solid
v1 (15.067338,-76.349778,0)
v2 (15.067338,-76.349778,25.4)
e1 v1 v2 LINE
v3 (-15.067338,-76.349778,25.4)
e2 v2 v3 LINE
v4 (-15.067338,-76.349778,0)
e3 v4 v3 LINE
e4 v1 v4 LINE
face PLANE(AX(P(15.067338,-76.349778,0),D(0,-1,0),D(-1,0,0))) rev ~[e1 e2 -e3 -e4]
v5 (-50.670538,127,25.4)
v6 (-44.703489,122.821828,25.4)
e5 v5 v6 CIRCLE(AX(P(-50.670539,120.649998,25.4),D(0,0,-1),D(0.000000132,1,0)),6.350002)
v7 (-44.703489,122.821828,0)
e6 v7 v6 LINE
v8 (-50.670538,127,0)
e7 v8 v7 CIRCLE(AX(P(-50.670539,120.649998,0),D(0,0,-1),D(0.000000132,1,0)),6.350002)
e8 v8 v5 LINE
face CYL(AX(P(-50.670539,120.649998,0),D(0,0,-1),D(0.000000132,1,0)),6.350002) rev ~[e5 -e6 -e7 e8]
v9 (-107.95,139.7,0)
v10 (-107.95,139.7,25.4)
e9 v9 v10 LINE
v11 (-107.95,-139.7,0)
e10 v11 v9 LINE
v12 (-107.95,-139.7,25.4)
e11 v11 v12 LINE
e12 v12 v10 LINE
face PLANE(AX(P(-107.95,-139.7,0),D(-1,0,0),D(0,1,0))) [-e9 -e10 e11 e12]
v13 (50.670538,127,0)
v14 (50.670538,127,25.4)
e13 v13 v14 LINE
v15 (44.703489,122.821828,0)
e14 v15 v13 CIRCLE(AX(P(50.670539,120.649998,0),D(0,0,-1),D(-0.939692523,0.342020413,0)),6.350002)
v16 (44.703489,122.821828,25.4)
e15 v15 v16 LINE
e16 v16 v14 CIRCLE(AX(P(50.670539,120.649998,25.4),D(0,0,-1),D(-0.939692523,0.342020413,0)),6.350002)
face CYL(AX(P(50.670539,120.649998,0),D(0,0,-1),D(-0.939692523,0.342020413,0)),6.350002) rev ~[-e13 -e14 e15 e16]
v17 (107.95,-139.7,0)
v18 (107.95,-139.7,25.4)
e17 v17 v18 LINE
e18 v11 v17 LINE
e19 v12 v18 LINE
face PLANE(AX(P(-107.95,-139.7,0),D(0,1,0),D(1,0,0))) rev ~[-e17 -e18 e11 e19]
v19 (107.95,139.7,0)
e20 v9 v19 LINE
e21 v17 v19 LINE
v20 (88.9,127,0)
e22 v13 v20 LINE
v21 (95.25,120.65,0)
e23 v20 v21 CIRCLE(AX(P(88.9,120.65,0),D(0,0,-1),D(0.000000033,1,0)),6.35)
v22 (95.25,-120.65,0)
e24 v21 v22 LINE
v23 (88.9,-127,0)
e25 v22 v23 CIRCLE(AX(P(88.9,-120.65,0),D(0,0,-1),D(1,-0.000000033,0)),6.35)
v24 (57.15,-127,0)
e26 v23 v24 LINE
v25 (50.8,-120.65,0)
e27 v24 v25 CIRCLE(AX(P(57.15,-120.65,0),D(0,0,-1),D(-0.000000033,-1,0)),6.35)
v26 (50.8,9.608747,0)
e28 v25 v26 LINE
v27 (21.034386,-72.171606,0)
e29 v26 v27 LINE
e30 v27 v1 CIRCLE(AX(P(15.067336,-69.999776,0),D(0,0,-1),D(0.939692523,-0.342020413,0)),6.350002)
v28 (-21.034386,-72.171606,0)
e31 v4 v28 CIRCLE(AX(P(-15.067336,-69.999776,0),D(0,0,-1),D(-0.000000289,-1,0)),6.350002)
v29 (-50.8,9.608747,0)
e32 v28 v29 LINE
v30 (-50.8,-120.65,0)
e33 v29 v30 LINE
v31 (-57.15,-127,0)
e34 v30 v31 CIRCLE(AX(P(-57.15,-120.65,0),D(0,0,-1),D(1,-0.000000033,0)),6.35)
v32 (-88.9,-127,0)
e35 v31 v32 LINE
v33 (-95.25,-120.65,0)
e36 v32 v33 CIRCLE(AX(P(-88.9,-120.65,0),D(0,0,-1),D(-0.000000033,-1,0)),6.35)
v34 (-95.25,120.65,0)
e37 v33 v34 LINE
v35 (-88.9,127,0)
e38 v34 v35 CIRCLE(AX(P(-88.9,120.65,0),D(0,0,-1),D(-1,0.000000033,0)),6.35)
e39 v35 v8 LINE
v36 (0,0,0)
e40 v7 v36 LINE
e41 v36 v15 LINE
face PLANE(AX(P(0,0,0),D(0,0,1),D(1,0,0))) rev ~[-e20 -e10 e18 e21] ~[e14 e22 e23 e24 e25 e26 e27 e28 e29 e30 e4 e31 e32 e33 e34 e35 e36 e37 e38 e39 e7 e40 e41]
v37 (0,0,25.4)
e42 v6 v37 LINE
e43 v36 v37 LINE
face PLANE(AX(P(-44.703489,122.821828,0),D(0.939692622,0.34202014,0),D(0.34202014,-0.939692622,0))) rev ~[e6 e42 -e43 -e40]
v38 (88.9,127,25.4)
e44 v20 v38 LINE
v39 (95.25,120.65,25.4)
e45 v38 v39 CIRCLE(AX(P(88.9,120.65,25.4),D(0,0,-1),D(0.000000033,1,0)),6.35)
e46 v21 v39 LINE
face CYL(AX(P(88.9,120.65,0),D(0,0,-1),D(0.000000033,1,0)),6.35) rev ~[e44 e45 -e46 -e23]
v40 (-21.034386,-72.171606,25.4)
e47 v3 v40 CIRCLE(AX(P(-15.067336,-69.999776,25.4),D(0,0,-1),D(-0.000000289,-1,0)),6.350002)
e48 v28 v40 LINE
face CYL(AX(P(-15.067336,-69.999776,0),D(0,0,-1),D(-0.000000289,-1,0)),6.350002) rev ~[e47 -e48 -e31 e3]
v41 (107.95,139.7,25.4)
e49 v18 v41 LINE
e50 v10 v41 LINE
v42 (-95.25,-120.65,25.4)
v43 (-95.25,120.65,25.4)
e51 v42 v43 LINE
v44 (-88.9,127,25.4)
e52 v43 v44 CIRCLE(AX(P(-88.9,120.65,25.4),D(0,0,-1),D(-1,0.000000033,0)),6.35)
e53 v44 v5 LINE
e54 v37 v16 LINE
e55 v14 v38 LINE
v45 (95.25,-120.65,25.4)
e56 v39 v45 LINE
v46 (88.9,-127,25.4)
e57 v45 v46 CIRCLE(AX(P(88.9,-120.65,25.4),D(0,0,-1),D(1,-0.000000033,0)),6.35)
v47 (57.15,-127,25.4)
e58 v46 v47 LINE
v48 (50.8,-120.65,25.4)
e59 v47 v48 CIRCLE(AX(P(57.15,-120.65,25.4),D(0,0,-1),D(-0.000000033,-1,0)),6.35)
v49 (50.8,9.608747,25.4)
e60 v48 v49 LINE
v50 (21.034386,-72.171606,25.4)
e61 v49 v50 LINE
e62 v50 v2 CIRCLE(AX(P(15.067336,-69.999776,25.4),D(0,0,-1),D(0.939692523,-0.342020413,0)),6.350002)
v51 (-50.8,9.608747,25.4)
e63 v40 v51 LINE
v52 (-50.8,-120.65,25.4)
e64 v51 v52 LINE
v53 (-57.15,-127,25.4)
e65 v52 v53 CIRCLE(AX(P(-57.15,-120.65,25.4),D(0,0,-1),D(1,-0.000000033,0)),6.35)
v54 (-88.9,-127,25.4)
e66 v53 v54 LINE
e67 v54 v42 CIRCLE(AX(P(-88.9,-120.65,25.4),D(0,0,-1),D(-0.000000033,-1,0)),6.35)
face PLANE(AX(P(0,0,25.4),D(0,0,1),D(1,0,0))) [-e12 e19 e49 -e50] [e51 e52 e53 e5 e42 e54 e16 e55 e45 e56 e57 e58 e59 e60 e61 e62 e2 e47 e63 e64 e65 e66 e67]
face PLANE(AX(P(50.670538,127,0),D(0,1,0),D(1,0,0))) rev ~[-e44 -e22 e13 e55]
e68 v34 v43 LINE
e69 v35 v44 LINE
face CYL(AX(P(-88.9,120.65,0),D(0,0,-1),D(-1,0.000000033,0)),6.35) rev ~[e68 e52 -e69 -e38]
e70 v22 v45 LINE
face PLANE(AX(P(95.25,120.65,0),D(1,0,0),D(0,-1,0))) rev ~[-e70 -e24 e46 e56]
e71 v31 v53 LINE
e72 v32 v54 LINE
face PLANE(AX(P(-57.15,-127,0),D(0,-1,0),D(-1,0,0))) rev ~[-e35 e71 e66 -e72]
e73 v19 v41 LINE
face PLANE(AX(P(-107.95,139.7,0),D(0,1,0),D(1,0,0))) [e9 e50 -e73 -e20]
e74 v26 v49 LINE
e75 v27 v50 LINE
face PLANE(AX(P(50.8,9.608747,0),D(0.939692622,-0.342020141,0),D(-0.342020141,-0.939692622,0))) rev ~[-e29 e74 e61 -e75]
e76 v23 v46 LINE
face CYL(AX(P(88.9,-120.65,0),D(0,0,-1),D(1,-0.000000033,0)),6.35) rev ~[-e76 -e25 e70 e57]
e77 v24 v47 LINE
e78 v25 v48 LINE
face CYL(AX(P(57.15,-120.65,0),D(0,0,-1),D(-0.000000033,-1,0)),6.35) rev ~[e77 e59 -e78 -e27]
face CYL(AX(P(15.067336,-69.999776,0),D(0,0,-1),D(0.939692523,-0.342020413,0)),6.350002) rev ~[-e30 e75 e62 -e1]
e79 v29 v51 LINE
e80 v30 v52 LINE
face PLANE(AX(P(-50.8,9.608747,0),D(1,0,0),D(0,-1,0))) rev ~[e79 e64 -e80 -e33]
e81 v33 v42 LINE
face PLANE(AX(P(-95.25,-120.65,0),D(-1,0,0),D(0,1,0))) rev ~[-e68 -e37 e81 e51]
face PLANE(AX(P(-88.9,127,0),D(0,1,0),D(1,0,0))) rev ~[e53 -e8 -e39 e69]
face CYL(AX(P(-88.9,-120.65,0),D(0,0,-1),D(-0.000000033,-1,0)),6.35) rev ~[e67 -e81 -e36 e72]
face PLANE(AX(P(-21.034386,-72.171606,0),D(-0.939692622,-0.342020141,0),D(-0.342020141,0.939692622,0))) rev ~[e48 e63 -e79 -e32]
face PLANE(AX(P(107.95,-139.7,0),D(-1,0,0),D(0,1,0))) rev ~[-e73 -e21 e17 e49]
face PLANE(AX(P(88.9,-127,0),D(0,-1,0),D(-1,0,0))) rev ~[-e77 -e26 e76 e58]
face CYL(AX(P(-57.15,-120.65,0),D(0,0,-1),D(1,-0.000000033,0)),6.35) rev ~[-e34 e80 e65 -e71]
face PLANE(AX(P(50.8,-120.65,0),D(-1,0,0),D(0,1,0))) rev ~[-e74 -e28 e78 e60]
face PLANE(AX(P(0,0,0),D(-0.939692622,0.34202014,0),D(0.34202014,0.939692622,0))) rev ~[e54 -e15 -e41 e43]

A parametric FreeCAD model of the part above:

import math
import FreeCAD as App
import Part
import Sketcher
Q = App.Units.Quantity

doc = App.newDocument("Part")
body = doc.addObject("PartDesign::Body", "Body")

# Sketch on XY plane
sketch1 = body.newObject("Sketcher::SketchObject", "Sketch")
sketch1.AttachmentSupport = (doc.getObject("XY_Plane"), [""])
sketch1.MapMode = "FlatFace"
sketch1.addGeometry(Part.LineSegment(App.Vector(-108, 140, 0), App.Vector(-108, -140, 0)), False)
sketch1.addGeometry(Part.LineSegment(App.Vector(-108, -140, 0), App.Vector(108, -140, 0)), False)
sketch1.addGeometry(Part.LineSegment(App.Vector(108, -140, 0), App.Vector(108, 140, 0)), False)
sketch1.addGeometry(Part.LineSegment(App.Vector(108, 140, 0), App.Vector(-108, 140, 0)), False)
sketch1.addGeometry(Part.ArcOfCircle(Part.Circle(App.Vector(-89, -121, 0), App.Vector(0, 0, 1), 6), math.radians(-180), math.radians(-90)), False)
sketch1.addGeometry(Part.LineSegment(App.Vector(-95, -121, 0), App.Vector(-95, 121, 0)), False)
sketch1.addGeometry(Part.ArcOfCircle(Part.Circle(App.Vector(-89, 121, 0), App.Vector(0, 0, 1), 6), math.radians(90), math.radians(180)), False)
sketch1.addGeometry(Part.LineSegment(App.Vector(-89, 127, 0), App.Vector(-51, 127, 0)), False)
sketch1.addGeometry(Part.ArcOfCircle(Part.Circle(App.Vector(-51, 121, 0), App.Vector(0, 0, 1), 6), math.radians(20), math.radians(90)), False)
sketch1.addGeometry(Part.LineSegment(App.Vector(-45, 123, 0), App.Vector(0, 0, 0)), False)
sketch1.addGeometry(Part.LineSegment(App.Vector(0, 0, 0), App.Vector(45, 123, 0)), False)
sketch1.addGeometry(Part.ArcOfCircle(Part.Circle(App.Vector(51, 121, 0), App.Vector(0, 0, 1), 6), math.radians(90), math.radians(160)), False)
sketch1.addGeometry(Part.LineSegment(App.Vector(51, 127, 0), App.Vector(89, 127, 0)), False)
sketch1.addGeometry(Part.ArcOfCircle(Part.Circle(App.Vector(89, 121, 0), App.Vector(0, 0, 1), 6), math.radians(0), math.radians(90)), False)
sketch1.addGeometry(Part.LineSegment(App.Vector(95, 121, 0), App.Vector(95, -121, 0)), False)
sketch1.addGeometry(Part.ArcOfCircle(Part.Circle(App.Vector(89, -121, 0), App.Vector(0, 0, 1), 6), math.radians(-90), math.radians(0)), False)
sketch1.addGeometry(Part.LineSegment(App.Vector(89, -127, 0), App.Vector(57, -127, 0)), False)
sketch1.addGeometry(Part.ArcOfCircle(Part.Circle(App.Vector(57, -121, 0), App.Vector(0, 0, 1), 6), math.radians(-180), math.radians(-90)), False)
sketch1.addGeometry(Part.LineSegment(App.Vector(51, -121, 0), App.Vector(51, 10, 0)), False)
sketch1.addGeometry(Part.LineSegment(App.Vector(51, 10, 0), App.Vector(21, -72, 0)), False)
sketch1.addGeometry(Part.ArcOfCircle(Part.Circle(App.Vector(15, -70, 0), App.Vector(0, 0, 1), 6), math.radians(-90), math.radians(-20)), False)
sketch1.addGeometry(Part.LineSegment(App.Vector(15, -76, 0), App.Vector(-15, -76, 0)), False)
sketch1.addGeometry(Part.ArcOfCircle(Part.Circle(App.Vector(-15, -70, 0), App.Vector(0, 0, 1), 6), math.radians(-160), math.radians(-90)), False)
sketch1.addGeometry(Part.LineSegment(App.Vector(-21, -72, 0), App.Vector(-51, 10, 0)), False)
sketch1.addGeometry(Part.LineSegment(App.Vector(-51, 10, 0), App.Vector(-51, -121, 0)), False)
sketch1.addGeometry(Part.ArcOfCircle(Part.Circle(App.Vector(-57, -121, 0), App.Vector(0, 0, 1), 6), math.radians(-90), math.radians(0)), False)
sketch1.addGeometry(Part.LineSegment(App.Vector(-57, -127, 0), App.Vector(-89, -127, 0)), False)
sketch1.addConstraint(Sketcher.Constraint("Coincident", 0, 2, 1, 1))
sketch1.addConstraint(Sketcher.Constraint("Coincident", 1, 2, 2, 1))
sketch1.addConstraint(Sketcher.Constraint("Coincident", 2, 2, 3, 1))
sketch1.addConstraint(Sketcher.Constraint("Coincident", 3, 2, 0, 1))
sketch1.addConstraint(Sketcher.Constraint("Tangent", 4, 1, 5, 1))
sketch1.addConstraint(Sketcher.Constraint("Tangent", 5, 2, 6, 2))
sketch1.addConstraint(Sketcher.Constraint("Tangent", 6, 1, 7, 1))
sketch1.addConstraint(Sketcher.Constraint("Tangent", 7, 2, 8, 2))
sketch1.addConstraint(Sketcher.Constraint("Tangent", 8, 1, 9, 1))
sketch1.addConstraint(Sketcher.Constraint("Coincident", 9, 2, 10, 1))
sketch1.addConstraint(Sketcher.Constraint("Tangent", 10, 2, 11, 2))
sketch1.addConstraint(Sketcher.Constraint("Tangent", 11, 1, 12, 1))
sketch1.addConstraint(Sketcher.Constraint("Tangent", 12, 2, 13, 2))
sketch1.addConstraint(Sketcher.Constraint("Tangent", 13, 1, 14, 1))
sketch1.addConstraint(Sketcher.Constraint("Tangent", 14, 2, 15, 2))
sketch1.addConstraint(Sketcher.Constraint("Tangent", 15, 1, 16, 1))
sketch1.addConstraint(Sketcher.Constraint("Tangent", 16, 2, 17, 2))
sketch1.addConstraint(Sketcher.Constraint("Tangent", 17, 1, 18, 1))
sketch1.addConstraint(Sketcher.Constraint("Coincident", 18, 2, 19, 1))
sketch1.addConstraint(Sketcher.Constraint("Tangent", 19, 2, 20, 2))
sketch1.addConstraint(Sketcher.Constraint("Tangent", 20, 1, 21, 1))
sketch1.addConstraint(Sketcher.Constraint("Tangent", 21, 2, 22, 2))
sketch1.addConstraint(Sketcher.Constraint("Tangent", 22, 1, 23, 1))
sketch1.addConstraint(Sketcher.Constraint("Coincident", 23, 2, 24, 1))
sketch1.addConstraint(Sketcher.Constraint("Tangent", 24, 2, 25, 2))
sketch1.addConstraint(Sketcher.Constraint("Tangent", 25, 1, 26, 1))
sketch1.addConstraint(Sketcher.Constraint("Tangent", 26, 2, 4, 2))
sketch1.addConstraint(Sketcher.Constraint("Vertical", 0))
sketch1.addConstraint(Sketcher.Constraint("Horizontal", 1))
sketch1.addConstraint(Sketcher.Constraint("Vertical", 2))
sketch1.addConstraint(Sketcher.Constraint("Horizontal", 3))
sketch1.addConstraint(Sketcher.Constraint("Vertical", 5))
sketch1.addConstraint(Sketcher.Constraint("Horizontal", 7))
sketch1.addConstraint(Sketcher.Constraint("Horizontal", 12))
sketch1.addConstraint(Sketcher.Constraint("Vertical", 14))
sketch1.addConstraint(Sketcher.Constraint("Horizontal", 16))
sketch1.addConstraint(Sketcher.Constraint("Vertical", 18))
sketch1.addConstraint(Sketcher.Constraint("Horizontal", 21))
sketch1.addConstraint(Sketcher.Constraint("Vertical", 24))
sketch1.addConstraint(Sketcher.Constraint("Horizontal", 26))
sketch1.addConstraint(Sketcher.Constraint("Coincident", 9, 2, -1, 1))
sketch1.addConstraint(Sketcher.Constraint("Equal", 4, 6))
sketch1.addConstraint(Sketcher.Constraint("Equal", 8, 11))
sketch1.addConstraint(Sketcher.Constraint("Equal", 6, 13))
sketch1.addConstraint(Sketcher.Constraint("Equal", 13, 15))
sketch1.addConstraint(Sketcher.Constraint("Equal", 15, 17))
sketch1.addConstraint(Sketcher.Constraint("Equal", 11, 20))
sketch1.addConstraint(Sketcher.Constraint("Equal", 20, 22))
sketch1.addConstraint(Sketcher.Constraint("Equal", 17, 25))
sketch1.addConstraint(Sketcher.Constraint("Symmetric", 4, 3, 13, 3, -1, 1))
sketch1.addConstraint(Sketcher.Constraint("Symmetric", 0, 2, 2, 2, -1, 1))
sketch1.addConstraint(Sketcher.Constraint("Symmetric", 8, 3, 11, 3, -2))
sketch1.addConstraint(Sketcher.Constraint("Symmetric", 17, 3, 25, 3, -2))
sketch1.addConstraint(Sketcher.Constraint("Symmetric", 19, 2, 22, 1, -2))
sketch1.addConstraint(Sketcher.Constraint("Parallel", 10, 19))
sketch1.addConstraint(Sketcher.Constraint("DistanceY", 0, 2, 0, 1, Q("11 in")))
sketch1.addConstraint(Sketcher.Constraint("Radius", 4, Q("0.25 in")))
sketch1.addConstraint(Sketcher.Constraint("Radius", 8, Q("0.2500001 in")))
sketch1.addConstraint(Sketcher.Constraint("DistanceX", 1, 1, 1, 2, Q("8.5 in")))
sketch1.addConstraint(Sketcher.Constraint("DistanceY", 5, 1, 5, 2, Q("9.5 in")))
sketch1.addConstraint(Sketcher.Constraint("DistanceX", -1, 1, 17, 1, Q("2 in")))
sketch1.addConstraint(Sketcher.Constraint("Angle", 9, Q("-70 deg")))
sketch1.addConstraint(Sketcher.Constraint("DistanceX", 6, 3, 13, 3, Q("7 in")))
sketch1.addConstraint(Sketcher.Constraint("DistanceX", 21, 2, 21, 1, 30.134676))
sketch1.addConstraint(Sketcher.Constraint("DistanceY", 18, 1, 18, 2, 130.258747))
pad1 = body.newObject("PartDesign::Pad", "Pad")
pad1.Profile = sketch1
pad1.Length = Q("1 in")

doc.recompute()
